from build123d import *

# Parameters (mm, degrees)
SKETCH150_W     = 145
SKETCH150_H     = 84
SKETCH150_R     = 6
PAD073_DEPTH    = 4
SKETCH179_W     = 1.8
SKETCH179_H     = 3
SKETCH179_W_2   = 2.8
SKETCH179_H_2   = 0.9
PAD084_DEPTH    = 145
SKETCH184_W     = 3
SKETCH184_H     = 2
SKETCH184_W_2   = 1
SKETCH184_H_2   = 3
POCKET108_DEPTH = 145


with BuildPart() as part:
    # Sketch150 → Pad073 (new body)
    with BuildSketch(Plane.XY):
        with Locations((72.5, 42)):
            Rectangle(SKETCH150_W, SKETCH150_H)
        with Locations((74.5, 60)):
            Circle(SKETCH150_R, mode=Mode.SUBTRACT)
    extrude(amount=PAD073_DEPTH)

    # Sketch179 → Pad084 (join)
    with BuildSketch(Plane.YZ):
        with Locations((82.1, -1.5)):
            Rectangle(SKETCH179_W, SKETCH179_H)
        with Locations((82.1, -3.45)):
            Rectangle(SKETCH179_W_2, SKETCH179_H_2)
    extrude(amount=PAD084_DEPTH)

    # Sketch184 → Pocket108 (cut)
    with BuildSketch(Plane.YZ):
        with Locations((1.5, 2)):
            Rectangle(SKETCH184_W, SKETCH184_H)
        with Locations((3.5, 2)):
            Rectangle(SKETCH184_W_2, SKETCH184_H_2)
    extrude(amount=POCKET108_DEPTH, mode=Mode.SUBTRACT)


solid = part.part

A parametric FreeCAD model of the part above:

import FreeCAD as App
import Part
import Sketcher
Q = App.Units.Quantity


def add_polygon(sketch, points):
    """Adds a closed chain of lines whose ends are joined by coincident constraints."""
    first, n = sketch.GeometryCount, len(points)
    for a, b in zip(points, points[1:] + points[:1]):
        sketch.addGeometry(Part.LineSegment(App.Vector(*a, 0), App.Vector(*b, 0)), False)
    for i in range(n):
        sketch.addConstraint(Sketcher.Constraint("Coincident", first + i, 2, first + (i + 1) % n, 1))

doc = App.newDocument("Part")
params = doc.addObject("Spreadsheet::Sheet", "Params")
for row, (alias, value) in enumerate([
    ("sketch1_diameter", "12 mm"),
    ("sketch1_width", "145 mm"),
    ("sketch1_height", "84 mm"),
    ("pad1_length", "4 mm"),
    ("sketch2_height", "3 mm"),
    ("sketch2_width", "0.5 mm"),
    ("sketch2_width2", "2.8 mm"),
    ("sketch2_height2", "0.9 mm"),
    ("pad2_length", "145 mm"),
    ("sketch3_width", "3 mm"),
    ("sketch3_width2", "1 mm"),
    ("sketch3_height", "2 mm"),
    ("pocket1_length", "145 mm"),
], start=1):
    params.set(f"A{row}", alias)
    params.set(f"B{row}", "=" + value)
    params.setAlias(f"B{row}", alias)

body = doc.addObject("PartDesign::Body", "Body")

sketch1 = body.newObject("Sketcher::SketchObject", "Sketch")
sketch1.AttachmentSupport = (doc.getObject("XY_Plane"), [""])
sketch1.MapMode = "FlatFace"
add_polygon(sketch1, [(0, 84), (0, 0), (145, 0), (145, 84)])
sketch1.addGeometry(Part.Circle(App.Vector(74, 60, 0), App.Vector(0, 0, 1), 6), False)
sketch1.addConstraint([
    Sketcher.Constraint("Vertical", 0),
    Sketcher.Constraint("Horizontal", 1),
    Sketcher.Constraint("Vertical", 2),
    Sketcher.Constraint("Horizontal", 3),
    Sketcher.Constraint("Coincident", 0, 2, -1, 1),
    Sketcher.Constraint("Diameter", 4, Q("12 mm")),
    Sketcher.Constraint("DistanceX", 1, 1, 1, 2, Q("145 mm")),
    Sketcher.Constraint("DistanceY", 0, 2, 0, 1, Q("84 mm")),
    Sketcher.Constraint("DistanceY", -1, 1, 4, 3, Q("60 mm")),
    Sketcher.Constraint("DistanceX", -1, 1, 4, 3, Q("74.5 mm")),
])
sketch1.setExpression("Constraints[9]", "Params.sketch1_diameter")
sketch1.setExpression("Constraints[10]", "Params.sketch1_width")
sketch1.setExpression("Constraints[11]", "Params.sketch1_height")
pad1 = body.newObject("PartDesign::Pad", "Pad")
pad1.Profile = sketch1
pad1.setExpression("Length", "Params.pad1_length")

sketch2 = body.newObject("Sketcher::SketchObject", "Sketch001")
sketch2.AttachmentSupport = (doc.getObject("YZ_Plane"), [""])
sketch2.MapMode = "FlatFace"
add_polygon(sketch2, [(81.2, 0), (81.2, -3), (80.7, -3), (80.7, -3.9), (83.5, -3.9), (83.5, -3), (83, -3), (83, 0)])
sketch2.addConstraint([
    Sketcher.Constraint("Vertical", 0),
    Sketcher.Constraint("Horizontal", 1),
    Sketcher.Constraint("Vertical", 2),
    Sketcher.Constraint("Horizontal", 3),
    Sketcher.Constraint("Vertical", 4),
    Sketcher.Constraint("Horizontal", 5),
    Sketcher.Constraint("Vertical", 6),
    Sketcher.Constraint("Horizontal", 7),
    Sketcher.Constraint("PointOnObject", 6, 2, -1),
    Sketcher.Constraint("Horizontal", 1, 2, 4, 2),
    Sketcher.Constraint("Equal", 1, 5),
    Sketcher.Constraint("DistanceY", 0, 2, 0, 1, Q("3 mm")),
    Sketcher.Constraint("DistanceX", 1, 2, 1, 1, Q("0.5 mm")),
    Sketcher.Constraint("DistanceX", 3, 1, 3, 2, Q("2.8 mm")),
    Sketcher.Constraint("DistanceY", 2, 2, 2, 1, Q("0.9 mm")),
    Sketcher.Constraint("DistanceX", -1, 1, 5, 2, Q("83 mm")),
])
sketch2.setExpression("Constraints[19]", "Params.sketch2_height")
sketch2.setExpression("Constraints[20]", "Params.sketch2_width")
sketch2.setExpression("Constraints[21]", "Params.sketch2_width2")
sketch2.setExpression("Constraints[22]", "Params.sketch2_height2")
pad2 = body.newObject("PartDesign::Pad", "Pad001")
pad2.Profile = sketch2
pad2.setExpression("Length", "Params.pad2_length")

sketch3 = body.newObject("Sketcher::SketchObject", "Sketch002")
sketch3.AttachmentSupport = (doc.getObject("YZ_Plane"), [""])
sketch3.MapMode = "FlatFace"
add_polygon(sketch3, [(0, 3), (0, 1), (3, 1), (3, 0.5), (4, 0.5), (4, 3.5), (3, 3.5), (3, 3)])
sketch3.addConstraint([
    Sketcher.Constraint("Vertical", 0),
    Sketcher.Constraint("Horizontal", 1),
    Sketcher.Constraint("Vertical", 2),
    Sketcher.Constraint("Horizontal", 3),
    Sketcher.Constraint("Vertical", 4),
    Sketcher.Constraint("Horizontal", 5),
    Sketcher.Constraint("Vertical", 6),
    Sketcher.Constraint("Horizontal", 7),
    Sketcher.Constraint("PointOnObject", 0, 2, -2),
    Sketcher.Constraint("Vertical", 2, 2, 5, 2),
    Sketcher.Constraint("Equal", 7, 4),
    Sketcher.Constraint("Equal", 2, 6),
    Sketcher.Constraint("DistanceX", 1, 1, 1, 2, Q("3 mm")),
    Sketcher.Constraint("DistanceX", 3, 1, 3, 2, Q("1 mm")),
    Sketcher.Constraint("DistanceY", 0, 2, 0, 1, Q("2 mm")),
    Sketcher.Constraint("DistanceY", -1, 1, 0, 2, Q("1 mm")),
])
sketch3.setExpression("Constraints[20]", "Params.sketch3_width")
sketch3.setExpression("Constraints[21]", "Params.sketch3_width2")
sketch3.setExpression("Constraints[22]", "Params.sketch3_height")
pocket1 = body.newObject("PartDesign::Pocket", "Pocket")
pocket1.Profile = sketch3
pocket1.setExpression("Length", "Params.pocket1_length")
pocket1.Reversed = True

doc.recompute()
